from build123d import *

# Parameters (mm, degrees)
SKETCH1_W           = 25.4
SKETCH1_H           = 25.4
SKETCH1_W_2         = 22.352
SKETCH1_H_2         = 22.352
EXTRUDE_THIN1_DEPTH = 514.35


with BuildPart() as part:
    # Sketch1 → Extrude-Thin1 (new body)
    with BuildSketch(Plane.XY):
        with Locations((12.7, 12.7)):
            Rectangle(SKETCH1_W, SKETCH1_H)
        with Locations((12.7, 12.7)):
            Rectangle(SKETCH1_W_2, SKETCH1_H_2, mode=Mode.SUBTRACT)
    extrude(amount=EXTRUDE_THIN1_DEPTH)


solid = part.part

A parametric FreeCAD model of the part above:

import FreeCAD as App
import Part
import Sketcher

V = App.Vector
Q = App.Units.Quantity


def add_polygon(sketch, points):
    """Adds a closed chain of lines whose ends are joined by coincident constraints."""
    first, n = sketch.GeometryCount, len(points)
    for a, b in zip(points, points[1:] + points[:1]):
        sketch.addGeometry(Part.LineSegment(App.Vector(*a, 0), App.Vector(*b, 0)), False)
    for i in range(n):
        sketch.addConstraint(Sketcher.Constraint("Coincident", first + i, 2, first + (i + 1) % n, 1))

doc = App.newDocument("Part")
body = doc.addObject("PartDesign::Body", "Body")

# Sketch on XY plane
sketch1 = body.newObject("Sketcher::SketchObject", "Sketch")
sketch1.AttachmentSupport = (doc.getObject("XY_Plane"), [""])
sketch1.MapMode = "FlatFace"
add_polygon(sketch1, [(0, 25.4), (0, 0), (25.4, 0), (25.4, 25.4)])  # lines 0-3
add_polygon(sketch1, [(23.876, 1.524), (1.524, 1.524), (1.524, 23.876), (23.876, 23.876)])  # lines 4-7
sketch1.addConstraint(Sketcher.Constraint("Vertical", 0))
sketch1.addConstraint(Sketcher.Constraint("Horizontal", 1))
sketch1.addConstraint(Sketcher.Constraint("Vertical", 2))
sketch1.addConstraint(Sketcher.Constraint("Horizontal", 3))
sketch1.addConstraint(Sketcher.Constraint("Horizontal", 4))
sketch1.addConstraint(Sketcher.Constraint("Vertical", 5))
sketch1.addConstraint(Sketcher.Constraint("Horizontal", 6))
sketch1.addConstraint(Sketcher.Constraint("Vertical", 7))
sketch1.addConstraint(Sketcher.Constraint("Coincident", 0, 2, -1, 1))
sketch1.addConstraint(Sketcher.Constraint("Equal", 3, 0))
sketch1.addConstraint(Sketcher.Constraint("Equal", 6, 5))
sketch1.addConstraint(Sketcher.Constraint("DistanceX", 1, 1, 1, 2, Q("1 in")))
sketch1.addConstraint(Sketcher.Constraint("DistanceX", 4, 2, 4, 1, Q("0.88 in")))
sketch1.addConstraint(Sketcher.Constraint("DistanceX", -1, 1, 4, 2, Q("0.06 in")))
sketch1.addConstraint(Sketcher.Constraint("DistanceY", -1, 1, 4, 2, Q("0.06 in")))
pad1 = body.newObject("PartDesign::Pad", "Pad")
pad1.Profile = sketch1
pad1.Length = Q("20.25 in")

doc.recompute()
